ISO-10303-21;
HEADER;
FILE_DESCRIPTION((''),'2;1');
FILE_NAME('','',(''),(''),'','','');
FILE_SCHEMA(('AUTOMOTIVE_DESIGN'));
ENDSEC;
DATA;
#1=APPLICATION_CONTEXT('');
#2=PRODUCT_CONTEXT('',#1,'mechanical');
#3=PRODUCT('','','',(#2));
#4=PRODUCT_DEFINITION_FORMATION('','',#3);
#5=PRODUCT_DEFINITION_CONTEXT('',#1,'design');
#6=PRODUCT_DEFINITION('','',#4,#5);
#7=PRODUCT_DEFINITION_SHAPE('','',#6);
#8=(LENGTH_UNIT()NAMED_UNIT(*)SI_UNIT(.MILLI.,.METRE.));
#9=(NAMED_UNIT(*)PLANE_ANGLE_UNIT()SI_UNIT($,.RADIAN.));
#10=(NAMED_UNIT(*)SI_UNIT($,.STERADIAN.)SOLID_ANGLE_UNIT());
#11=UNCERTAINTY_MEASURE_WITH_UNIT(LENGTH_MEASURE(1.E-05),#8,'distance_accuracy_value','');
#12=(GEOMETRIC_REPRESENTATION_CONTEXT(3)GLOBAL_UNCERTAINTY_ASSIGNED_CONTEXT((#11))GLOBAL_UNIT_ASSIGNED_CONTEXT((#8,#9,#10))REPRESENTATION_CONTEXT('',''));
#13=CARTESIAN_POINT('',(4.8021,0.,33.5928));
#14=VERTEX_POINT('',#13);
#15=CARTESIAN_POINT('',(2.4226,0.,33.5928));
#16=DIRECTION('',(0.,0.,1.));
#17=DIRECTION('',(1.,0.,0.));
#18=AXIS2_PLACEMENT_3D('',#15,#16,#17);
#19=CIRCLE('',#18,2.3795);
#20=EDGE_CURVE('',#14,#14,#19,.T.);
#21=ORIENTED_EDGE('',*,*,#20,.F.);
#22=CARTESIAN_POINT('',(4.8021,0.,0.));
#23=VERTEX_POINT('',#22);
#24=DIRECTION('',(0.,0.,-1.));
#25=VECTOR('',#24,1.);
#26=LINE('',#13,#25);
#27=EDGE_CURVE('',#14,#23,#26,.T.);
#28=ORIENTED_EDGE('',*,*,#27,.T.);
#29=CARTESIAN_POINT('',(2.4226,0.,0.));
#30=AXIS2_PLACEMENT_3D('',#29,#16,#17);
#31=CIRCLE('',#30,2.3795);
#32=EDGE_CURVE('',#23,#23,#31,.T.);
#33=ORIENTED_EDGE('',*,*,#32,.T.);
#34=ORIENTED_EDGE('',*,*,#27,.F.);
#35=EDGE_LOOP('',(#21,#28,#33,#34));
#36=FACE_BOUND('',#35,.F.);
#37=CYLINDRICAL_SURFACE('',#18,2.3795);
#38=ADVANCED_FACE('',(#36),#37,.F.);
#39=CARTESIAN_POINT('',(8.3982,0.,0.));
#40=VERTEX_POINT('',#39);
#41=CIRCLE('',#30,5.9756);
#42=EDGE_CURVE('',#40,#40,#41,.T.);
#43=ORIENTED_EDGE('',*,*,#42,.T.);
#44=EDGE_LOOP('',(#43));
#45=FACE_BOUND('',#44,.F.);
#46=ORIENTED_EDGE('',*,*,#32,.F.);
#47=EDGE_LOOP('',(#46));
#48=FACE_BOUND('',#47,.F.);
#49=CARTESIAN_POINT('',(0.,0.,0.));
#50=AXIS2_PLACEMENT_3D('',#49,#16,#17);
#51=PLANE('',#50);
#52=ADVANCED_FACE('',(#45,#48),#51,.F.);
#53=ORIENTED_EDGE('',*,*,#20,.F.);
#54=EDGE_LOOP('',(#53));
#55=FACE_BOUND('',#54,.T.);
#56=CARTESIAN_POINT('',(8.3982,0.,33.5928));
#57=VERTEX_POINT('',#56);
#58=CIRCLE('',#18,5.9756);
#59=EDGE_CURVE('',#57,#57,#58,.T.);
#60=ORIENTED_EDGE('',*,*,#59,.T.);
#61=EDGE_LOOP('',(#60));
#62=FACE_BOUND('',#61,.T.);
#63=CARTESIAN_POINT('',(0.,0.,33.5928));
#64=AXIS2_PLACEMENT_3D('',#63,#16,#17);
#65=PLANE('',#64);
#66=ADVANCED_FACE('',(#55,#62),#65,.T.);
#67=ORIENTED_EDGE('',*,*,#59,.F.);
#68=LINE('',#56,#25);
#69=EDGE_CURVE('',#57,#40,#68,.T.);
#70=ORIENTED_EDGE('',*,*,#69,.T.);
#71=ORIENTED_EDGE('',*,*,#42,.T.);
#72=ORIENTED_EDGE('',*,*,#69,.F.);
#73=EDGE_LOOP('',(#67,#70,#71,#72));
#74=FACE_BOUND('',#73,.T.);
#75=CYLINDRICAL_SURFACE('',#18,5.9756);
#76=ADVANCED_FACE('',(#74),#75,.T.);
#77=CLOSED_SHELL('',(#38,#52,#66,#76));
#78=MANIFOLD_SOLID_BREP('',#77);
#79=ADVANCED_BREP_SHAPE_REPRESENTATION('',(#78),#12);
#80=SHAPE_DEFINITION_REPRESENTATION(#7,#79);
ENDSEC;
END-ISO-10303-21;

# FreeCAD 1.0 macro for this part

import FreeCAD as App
import Part
import Sketcher

V = App.Vector

doc = App.newDocument("Part")
params = doc.addObject("Spreadsheet::Sheet", "Params")
for row, (alias, value) in enumerate([
    ("pad1_length", "33.5928 mm"),
], start=1):
    params.set(f"A{row}", alias)
    params.set(f"B{row}", "=" + value)
    params.setAlias(f"B{row}", alias)

body = doc.addObject("PartDesign::Body", "Body")

sketch1 = body.newObject("Sketcher::SketchObject", "Sketch")
sketch1.AttachmentSupport = (doc.getObject("XY_Plane"), [""])
sketch1.MapMode = "FlatFace"
sketch1.AttachmentOffset = App.Placement(V(0, 0, 33.5928), App.Rotation())
sketch1.addGeometry([
    Part.Circle(V(2.4, 0, 0), V(0, 0, 1), 6),
    Part.Circle(V(2.4, 0, 0), V(0, 0, 1), 2.4),
], False)
sketch1.addConstraint([
    Sketcher.Constraint("Coincident", 1, 3, 0, 3),
    Sketcher.Constraint("PointOnObject", 0, 3, -1),
    Sketcher.Constraint("Diameter", 1, 4.759),
    Sketcher.Constraint("Diameter", 0, 11.9512),
    Sketcher.Constraint("DistanceX", -1, 1, 0, 3, 2.4226),
])
pad1 = body.newObject("PartDesign::Pad", "Pad")
pad1.Profile = sketch1
pad1.setExpression("Length", "Params.pad1_length")
pad1.Reversed = True

doc.recompute()
